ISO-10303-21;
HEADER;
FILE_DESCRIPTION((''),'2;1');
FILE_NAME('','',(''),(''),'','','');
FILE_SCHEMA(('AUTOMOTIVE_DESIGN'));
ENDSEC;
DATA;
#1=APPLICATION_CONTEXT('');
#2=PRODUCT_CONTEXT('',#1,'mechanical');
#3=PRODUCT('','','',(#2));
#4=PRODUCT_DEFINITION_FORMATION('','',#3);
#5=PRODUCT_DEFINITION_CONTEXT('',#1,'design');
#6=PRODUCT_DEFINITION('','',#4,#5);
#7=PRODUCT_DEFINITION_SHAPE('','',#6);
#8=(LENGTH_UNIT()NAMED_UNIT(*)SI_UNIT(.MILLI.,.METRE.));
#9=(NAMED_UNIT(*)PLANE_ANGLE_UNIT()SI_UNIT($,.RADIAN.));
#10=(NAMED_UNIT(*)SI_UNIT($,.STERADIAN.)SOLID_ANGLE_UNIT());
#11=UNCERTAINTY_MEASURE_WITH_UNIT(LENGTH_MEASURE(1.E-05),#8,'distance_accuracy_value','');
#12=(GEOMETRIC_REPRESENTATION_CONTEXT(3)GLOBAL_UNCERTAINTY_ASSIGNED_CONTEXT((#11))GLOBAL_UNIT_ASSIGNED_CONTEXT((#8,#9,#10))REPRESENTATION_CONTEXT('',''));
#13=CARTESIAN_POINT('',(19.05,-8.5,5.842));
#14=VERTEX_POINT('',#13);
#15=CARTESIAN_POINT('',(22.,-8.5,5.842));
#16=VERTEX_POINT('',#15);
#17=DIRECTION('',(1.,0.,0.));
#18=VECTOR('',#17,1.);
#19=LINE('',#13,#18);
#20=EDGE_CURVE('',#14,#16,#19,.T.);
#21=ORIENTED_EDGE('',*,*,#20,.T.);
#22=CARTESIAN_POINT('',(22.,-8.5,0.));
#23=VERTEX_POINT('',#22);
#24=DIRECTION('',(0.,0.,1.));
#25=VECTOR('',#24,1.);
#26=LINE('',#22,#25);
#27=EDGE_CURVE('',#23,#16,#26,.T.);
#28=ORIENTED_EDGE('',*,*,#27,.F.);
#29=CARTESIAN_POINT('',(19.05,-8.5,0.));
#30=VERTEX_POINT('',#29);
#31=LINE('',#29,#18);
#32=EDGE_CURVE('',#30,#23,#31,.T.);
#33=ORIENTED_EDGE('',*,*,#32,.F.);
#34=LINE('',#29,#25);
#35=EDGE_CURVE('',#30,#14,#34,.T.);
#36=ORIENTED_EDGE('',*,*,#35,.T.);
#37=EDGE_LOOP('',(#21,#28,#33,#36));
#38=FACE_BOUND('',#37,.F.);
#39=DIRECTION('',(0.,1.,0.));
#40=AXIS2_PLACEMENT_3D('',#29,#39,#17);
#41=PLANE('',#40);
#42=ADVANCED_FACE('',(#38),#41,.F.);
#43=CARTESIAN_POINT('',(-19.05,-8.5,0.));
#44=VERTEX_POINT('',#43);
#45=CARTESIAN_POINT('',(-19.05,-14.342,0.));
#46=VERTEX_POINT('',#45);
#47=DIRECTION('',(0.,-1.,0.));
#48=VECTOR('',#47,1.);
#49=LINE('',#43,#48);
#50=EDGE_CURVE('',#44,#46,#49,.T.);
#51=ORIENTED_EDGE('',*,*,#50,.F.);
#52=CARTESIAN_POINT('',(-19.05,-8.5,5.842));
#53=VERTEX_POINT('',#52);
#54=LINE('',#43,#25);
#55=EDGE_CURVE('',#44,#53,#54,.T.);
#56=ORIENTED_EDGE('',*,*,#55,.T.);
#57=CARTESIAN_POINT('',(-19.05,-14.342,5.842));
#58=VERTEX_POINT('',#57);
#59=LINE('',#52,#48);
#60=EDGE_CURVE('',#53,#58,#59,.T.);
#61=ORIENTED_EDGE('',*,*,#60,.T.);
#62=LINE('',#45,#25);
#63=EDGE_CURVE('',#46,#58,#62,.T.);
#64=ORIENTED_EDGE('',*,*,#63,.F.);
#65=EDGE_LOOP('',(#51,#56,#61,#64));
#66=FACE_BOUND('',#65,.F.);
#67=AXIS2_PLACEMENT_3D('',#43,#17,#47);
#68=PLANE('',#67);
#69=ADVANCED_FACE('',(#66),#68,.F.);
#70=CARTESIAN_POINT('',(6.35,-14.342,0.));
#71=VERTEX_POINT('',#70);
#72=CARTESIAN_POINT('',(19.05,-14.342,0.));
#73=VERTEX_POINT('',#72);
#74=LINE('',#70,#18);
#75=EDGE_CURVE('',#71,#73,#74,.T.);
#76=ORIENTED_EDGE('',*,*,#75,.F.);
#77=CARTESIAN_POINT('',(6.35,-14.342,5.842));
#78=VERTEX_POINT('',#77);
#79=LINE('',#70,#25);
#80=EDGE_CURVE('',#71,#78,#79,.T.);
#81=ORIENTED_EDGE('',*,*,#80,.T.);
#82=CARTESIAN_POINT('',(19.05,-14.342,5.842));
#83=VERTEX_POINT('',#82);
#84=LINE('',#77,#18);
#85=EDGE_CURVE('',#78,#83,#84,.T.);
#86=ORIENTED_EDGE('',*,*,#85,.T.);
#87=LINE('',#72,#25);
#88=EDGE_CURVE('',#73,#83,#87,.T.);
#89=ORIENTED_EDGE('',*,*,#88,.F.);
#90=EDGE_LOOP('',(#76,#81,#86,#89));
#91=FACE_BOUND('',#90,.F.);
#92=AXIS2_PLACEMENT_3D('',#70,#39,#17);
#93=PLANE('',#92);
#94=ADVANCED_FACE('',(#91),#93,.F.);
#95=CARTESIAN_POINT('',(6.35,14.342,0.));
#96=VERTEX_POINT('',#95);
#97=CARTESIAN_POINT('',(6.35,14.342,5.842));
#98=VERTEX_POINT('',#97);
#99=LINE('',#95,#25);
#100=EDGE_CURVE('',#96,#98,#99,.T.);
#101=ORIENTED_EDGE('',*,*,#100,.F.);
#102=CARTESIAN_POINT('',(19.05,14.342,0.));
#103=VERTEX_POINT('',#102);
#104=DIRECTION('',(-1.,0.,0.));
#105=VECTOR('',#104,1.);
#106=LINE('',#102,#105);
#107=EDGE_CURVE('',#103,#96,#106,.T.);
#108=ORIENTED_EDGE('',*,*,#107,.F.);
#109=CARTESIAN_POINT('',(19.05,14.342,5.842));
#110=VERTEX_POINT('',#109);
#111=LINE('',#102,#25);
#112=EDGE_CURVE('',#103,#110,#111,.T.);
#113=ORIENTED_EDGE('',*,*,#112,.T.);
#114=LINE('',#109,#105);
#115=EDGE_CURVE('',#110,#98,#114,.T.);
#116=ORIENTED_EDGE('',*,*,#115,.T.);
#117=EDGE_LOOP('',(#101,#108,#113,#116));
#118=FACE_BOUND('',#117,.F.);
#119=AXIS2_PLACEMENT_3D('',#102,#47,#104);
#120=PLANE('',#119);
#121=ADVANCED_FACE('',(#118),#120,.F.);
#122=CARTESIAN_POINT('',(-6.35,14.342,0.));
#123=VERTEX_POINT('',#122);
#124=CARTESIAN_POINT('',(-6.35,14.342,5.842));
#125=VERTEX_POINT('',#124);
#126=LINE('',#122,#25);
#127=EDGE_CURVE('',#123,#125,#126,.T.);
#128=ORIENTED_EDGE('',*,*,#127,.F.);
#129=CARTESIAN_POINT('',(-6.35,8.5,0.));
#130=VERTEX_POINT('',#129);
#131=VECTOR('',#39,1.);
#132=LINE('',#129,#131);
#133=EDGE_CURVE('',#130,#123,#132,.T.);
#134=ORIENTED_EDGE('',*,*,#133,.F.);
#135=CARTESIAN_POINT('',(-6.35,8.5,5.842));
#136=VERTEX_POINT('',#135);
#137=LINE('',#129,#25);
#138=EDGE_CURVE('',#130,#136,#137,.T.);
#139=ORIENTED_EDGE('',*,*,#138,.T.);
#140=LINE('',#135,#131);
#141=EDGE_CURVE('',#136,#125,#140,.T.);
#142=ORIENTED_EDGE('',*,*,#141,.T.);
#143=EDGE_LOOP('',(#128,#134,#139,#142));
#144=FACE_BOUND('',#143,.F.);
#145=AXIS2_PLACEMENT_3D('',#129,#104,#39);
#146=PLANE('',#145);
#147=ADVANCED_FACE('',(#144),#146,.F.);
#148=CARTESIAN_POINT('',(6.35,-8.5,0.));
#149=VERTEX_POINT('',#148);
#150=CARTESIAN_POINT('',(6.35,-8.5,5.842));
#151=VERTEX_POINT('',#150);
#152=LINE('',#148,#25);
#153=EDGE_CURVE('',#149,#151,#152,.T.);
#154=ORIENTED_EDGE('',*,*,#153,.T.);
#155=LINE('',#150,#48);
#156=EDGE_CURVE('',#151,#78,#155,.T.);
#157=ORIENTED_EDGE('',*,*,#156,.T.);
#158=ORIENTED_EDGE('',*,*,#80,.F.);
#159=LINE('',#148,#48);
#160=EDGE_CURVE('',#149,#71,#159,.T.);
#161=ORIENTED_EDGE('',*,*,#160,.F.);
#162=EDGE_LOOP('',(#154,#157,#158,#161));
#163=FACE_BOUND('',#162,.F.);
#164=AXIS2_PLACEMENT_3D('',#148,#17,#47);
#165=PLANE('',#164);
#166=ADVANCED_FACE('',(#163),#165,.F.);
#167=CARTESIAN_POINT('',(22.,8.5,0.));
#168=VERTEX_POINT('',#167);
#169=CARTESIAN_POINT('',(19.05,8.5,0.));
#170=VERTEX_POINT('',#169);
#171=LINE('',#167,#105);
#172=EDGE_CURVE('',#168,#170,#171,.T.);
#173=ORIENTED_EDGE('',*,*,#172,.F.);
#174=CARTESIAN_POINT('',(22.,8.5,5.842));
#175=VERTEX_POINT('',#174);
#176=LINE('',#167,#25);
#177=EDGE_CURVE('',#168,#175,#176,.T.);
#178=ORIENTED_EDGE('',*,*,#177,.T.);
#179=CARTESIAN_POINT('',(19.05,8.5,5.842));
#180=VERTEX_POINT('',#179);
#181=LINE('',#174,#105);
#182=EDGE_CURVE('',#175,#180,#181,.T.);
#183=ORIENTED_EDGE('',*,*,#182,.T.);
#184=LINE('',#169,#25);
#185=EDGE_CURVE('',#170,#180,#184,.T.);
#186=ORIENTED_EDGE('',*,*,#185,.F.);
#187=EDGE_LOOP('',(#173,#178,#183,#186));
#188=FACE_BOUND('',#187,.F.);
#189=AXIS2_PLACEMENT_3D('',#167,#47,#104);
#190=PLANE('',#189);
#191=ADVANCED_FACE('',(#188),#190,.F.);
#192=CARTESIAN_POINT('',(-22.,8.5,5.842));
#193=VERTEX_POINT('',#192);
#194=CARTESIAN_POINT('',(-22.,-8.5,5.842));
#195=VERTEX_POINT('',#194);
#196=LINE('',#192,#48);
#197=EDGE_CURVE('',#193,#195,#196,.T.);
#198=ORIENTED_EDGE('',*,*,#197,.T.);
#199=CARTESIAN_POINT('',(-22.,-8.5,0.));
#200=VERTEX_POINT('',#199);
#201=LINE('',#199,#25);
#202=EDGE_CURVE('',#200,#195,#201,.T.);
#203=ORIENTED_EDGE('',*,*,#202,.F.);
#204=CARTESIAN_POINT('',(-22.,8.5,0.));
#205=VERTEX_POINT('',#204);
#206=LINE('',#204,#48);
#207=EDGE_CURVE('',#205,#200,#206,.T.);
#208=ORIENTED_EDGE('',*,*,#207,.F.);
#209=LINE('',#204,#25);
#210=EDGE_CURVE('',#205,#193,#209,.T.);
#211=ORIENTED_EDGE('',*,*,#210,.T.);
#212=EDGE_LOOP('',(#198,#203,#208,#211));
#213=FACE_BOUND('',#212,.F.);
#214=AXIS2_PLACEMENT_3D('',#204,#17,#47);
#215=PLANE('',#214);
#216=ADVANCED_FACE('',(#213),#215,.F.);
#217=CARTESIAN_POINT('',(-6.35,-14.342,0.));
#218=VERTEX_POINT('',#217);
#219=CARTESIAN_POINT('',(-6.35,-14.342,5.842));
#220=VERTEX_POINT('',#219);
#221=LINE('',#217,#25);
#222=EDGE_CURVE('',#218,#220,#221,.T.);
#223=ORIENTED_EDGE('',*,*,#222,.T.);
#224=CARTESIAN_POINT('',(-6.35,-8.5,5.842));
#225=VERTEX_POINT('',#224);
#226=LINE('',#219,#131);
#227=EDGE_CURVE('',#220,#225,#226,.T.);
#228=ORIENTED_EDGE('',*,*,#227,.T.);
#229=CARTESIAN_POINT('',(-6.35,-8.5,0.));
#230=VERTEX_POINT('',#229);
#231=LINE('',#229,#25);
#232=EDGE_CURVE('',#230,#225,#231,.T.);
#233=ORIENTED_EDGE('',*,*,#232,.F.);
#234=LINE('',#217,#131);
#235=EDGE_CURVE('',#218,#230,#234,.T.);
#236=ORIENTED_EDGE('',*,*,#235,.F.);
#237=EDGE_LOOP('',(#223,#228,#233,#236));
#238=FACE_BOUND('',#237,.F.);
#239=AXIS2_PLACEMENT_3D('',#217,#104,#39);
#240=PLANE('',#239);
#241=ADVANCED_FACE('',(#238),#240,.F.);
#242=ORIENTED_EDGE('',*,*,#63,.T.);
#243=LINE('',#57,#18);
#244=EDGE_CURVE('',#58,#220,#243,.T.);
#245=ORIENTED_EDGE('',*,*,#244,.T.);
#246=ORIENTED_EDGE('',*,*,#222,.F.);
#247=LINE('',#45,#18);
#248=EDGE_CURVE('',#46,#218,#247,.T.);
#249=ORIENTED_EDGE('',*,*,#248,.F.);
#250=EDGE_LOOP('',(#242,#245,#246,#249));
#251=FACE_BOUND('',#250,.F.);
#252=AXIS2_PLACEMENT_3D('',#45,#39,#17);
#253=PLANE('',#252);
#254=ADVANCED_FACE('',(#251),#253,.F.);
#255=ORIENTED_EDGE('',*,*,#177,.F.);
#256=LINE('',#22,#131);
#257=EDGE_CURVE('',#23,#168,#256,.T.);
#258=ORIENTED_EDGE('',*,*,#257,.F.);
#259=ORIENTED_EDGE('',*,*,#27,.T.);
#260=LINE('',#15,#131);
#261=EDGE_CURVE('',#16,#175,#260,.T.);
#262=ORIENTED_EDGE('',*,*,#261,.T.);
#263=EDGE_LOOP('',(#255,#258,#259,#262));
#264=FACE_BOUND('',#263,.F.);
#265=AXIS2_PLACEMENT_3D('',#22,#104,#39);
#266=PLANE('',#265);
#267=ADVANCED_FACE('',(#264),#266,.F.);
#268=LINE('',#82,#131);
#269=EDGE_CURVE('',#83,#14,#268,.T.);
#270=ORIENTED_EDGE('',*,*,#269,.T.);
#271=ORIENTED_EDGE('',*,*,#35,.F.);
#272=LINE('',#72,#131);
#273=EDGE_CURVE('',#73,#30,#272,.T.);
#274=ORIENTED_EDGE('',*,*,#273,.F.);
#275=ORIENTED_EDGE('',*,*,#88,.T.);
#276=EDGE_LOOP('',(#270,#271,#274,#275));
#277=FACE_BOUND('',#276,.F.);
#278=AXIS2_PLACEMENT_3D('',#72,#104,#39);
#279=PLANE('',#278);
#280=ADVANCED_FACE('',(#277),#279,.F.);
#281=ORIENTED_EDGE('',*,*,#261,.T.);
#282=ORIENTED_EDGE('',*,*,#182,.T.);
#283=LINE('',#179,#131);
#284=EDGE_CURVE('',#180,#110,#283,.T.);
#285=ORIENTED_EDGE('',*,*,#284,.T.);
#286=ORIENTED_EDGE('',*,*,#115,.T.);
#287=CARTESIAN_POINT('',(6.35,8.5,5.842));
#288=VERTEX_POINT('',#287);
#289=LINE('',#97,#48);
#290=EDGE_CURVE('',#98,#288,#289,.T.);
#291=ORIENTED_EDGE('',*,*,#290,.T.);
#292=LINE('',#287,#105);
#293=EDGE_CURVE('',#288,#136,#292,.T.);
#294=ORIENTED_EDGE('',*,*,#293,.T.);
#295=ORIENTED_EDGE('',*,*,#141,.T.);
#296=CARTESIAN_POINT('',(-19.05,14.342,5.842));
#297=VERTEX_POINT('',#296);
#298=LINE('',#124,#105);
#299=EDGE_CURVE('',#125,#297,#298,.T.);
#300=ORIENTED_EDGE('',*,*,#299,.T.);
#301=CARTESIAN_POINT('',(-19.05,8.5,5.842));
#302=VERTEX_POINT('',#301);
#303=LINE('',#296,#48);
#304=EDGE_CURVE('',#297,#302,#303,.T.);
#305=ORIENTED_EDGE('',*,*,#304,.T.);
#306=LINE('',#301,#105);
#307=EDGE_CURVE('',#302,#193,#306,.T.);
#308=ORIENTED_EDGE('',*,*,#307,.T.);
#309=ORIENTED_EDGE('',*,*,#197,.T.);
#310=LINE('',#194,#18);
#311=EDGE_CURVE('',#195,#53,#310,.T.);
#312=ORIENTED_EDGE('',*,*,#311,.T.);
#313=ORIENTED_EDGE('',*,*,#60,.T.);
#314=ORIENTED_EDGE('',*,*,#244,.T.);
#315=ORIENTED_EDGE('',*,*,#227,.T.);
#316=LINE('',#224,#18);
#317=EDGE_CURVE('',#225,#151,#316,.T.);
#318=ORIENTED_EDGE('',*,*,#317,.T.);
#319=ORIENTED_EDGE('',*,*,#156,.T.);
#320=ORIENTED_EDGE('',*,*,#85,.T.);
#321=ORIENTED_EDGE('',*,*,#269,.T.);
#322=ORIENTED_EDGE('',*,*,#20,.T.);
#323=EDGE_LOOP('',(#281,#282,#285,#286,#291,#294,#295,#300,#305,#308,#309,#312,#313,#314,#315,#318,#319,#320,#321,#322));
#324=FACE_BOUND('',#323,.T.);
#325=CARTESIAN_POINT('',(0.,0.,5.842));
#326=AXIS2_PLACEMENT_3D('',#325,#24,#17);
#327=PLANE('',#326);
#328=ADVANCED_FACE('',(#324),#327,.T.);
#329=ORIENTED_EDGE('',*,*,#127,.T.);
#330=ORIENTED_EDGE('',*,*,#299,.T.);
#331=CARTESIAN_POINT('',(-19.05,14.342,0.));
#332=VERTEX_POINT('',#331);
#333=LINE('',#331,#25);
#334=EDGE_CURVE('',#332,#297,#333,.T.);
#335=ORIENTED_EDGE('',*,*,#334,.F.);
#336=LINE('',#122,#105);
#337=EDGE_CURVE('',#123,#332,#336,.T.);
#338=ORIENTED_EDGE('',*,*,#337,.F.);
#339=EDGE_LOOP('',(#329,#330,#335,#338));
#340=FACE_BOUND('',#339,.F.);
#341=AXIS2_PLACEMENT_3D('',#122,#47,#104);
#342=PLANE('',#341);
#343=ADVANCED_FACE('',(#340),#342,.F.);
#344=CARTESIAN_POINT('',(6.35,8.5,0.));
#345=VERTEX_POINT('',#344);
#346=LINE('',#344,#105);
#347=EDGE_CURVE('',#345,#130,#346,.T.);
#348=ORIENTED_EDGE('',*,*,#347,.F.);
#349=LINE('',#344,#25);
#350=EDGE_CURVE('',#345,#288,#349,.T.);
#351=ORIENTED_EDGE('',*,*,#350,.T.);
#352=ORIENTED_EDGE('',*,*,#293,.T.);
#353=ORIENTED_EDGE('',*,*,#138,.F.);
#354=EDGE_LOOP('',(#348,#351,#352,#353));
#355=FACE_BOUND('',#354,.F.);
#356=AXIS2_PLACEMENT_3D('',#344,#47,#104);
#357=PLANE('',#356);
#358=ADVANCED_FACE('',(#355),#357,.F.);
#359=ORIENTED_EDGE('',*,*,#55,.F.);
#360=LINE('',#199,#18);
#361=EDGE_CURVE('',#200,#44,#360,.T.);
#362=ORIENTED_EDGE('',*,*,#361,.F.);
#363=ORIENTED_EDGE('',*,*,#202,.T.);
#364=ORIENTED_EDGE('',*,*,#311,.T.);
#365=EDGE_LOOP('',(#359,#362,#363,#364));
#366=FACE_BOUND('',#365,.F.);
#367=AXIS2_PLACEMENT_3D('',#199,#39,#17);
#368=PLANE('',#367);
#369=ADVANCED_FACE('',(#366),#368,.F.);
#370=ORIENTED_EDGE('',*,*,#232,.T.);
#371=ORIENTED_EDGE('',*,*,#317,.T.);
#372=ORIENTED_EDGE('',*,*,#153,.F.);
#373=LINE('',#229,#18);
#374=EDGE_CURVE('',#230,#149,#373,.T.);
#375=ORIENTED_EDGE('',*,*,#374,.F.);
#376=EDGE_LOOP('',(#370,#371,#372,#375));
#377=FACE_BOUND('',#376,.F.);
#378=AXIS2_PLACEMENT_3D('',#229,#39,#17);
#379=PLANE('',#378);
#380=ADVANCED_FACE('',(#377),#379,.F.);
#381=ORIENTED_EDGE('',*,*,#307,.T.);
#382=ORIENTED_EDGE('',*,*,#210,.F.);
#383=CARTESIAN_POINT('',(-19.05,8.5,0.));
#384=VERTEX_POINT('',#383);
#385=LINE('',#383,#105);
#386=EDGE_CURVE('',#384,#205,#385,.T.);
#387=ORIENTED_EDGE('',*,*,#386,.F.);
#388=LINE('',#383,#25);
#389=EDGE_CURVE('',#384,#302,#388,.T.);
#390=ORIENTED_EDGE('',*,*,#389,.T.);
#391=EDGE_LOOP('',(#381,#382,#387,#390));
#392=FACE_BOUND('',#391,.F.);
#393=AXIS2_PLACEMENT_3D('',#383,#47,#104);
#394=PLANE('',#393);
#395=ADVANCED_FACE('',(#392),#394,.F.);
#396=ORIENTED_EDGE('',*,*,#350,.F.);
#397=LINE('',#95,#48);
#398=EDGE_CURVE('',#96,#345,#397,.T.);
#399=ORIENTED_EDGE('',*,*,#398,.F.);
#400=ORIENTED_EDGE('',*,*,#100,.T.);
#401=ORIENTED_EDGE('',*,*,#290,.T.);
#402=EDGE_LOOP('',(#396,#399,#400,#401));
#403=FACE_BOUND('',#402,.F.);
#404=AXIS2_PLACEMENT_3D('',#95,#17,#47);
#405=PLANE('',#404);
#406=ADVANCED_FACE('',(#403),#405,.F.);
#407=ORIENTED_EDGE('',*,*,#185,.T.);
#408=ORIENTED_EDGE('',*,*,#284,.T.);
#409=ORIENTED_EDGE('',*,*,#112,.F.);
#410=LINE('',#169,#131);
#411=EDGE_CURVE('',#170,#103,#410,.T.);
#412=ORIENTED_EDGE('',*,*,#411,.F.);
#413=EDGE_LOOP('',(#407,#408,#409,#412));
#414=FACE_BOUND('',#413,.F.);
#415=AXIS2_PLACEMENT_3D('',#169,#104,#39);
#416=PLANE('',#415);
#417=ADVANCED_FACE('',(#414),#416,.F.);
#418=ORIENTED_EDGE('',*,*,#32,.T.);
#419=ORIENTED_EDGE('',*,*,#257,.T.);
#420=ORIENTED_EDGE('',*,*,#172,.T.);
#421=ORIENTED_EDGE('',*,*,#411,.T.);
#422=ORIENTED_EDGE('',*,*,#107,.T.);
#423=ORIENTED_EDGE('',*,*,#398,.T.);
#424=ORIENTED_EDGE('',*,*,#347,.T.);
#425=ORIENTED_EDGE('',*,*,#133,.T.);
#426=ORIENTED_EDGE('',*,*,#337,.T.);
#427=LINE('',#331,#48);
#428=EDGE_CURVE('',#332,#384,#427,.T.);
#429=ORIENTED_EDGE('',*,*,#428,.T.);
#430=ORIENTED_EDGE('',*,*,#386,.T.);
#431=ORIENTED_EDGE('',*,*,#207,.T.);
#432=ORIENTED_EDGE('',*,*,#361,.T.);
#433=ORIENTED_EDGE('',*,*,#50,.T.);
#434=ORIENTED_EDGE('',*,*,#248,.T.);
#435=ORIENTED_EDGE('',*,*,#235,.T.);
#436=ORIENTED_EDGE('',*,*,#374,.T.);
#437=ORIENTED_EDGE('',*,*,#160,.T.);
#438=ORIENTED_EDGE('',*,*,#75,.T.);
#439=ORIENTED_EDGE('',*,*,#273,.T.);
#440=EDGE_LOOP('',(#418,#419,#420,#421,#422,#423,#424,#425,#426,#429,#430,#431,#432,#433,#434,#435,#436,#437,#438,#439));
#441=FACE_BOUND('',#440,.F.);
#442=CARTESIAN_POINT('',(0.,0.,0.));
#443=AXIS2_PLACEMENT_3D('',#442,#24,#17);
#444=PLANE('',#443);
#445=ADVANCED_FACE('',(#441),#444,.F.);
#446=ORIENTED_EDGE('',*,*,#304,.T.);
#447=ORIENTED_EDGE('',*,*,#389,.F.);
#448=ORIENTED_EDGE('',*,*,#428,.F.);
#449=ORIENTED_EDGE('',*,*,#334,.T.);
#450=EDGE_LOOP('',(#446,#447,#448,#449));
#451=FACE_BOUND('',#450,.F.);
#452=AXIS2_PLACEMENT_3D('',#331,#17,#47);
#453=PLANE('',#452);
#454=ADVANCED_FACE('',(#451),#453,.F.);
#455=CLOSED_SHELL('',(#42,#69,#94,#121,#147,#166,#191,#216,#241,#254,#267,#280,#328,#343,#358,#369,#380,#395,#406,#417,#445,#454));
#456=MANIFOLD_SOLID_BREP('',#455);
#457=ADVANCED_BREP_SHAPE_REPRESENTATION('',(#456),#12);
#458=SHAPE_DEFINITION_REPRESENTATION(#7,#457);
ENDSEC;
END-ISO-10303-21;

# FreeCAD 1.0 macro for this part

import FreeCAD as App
import Part
import Sketcher
Q = App.Units.Quantity


def add_polygon(sketch, points):
    """Adds a closed chain of lines whose ends are joined by coincident constraints."""
    first, n = sketch.GeometryCount, len(points)
    for a, b in zip(points, points[1:] + points[:1]):
        sketch.addGeometry(Part.LineSegment(App.Vector(*a, 0), App.Vector(*b, 0)), False)
    for i in range(n):
        sketch.addConstraint(Sketcher.Constraint("Coincident", first + i, 2, first + (i + 1) % n, 1))

doc = App.newDocument("Part")
body = doc.addObject("PartDesign::Body", "Body")

sketch1 = body.newObject("Sketcher::SketchObject", "Sketch")
sketch1.AttachmentSupport = (doc.getObject("XY_Plane"), [""])
sketch1.MapMode = "FlatFace"
add_polygon(sketch1, [(-19.1, 8.5), (-22, 8.5), (-22, -8.5), (-19.1, -8.5), (-19.1, -14.3), (-6.3, -14.3), (-6.3, -8.5), (6.3, -8.5), (6.3, -14.3), (19.1, -14.3), (19.1, -8.5), (22, -8.5), (22, 8.5), (19.1, 8.5), (19.1, 14.3), (6.3, 14.3), (6.3, 8.5), (-6.3, 8.5), (-6.3, 14.3), (-19.1, 14.3)])
sketch1.addConstraint([
    Sketcher.Constraint("Horizontal", 0),
    Sketcher.Constraint("Vertical", 1),
    Sketcher.Constraint("Horizontal", 2),
    Sketcher.Constraint("Vertical", 3),
    Sketcher.Constraint("Horizontal", 4),
    Sketcher.Constraint("Vertical", 5),
    Sketcher.Constraint("Horizontal", 6),
    Sketcher.Constraint("Vertical", 7),
    Sketcher.Constraint("Horizontal", 8),
    Sketcher.Constraint("Vertical", 9),
    Sketcher.Constraint("Horizontal", 10),
    Sketcher.Constraint("Vertical", 11),
    Sketcher.Constraint("Horizontal", 12),
    Sketcher.Constraint("Vertical", 13),
    Sketcher.Constraint("Horizontal", 14),
    Sketcher.Constraint("Vertical", 15),
    Sketcher.Constraint("Horizontal", 16),
    Sketcher.Constraint("Vertical", 17),
    Sketcher.Constraint("Horizontal", 18),
    Sketcher.Constraint("Vertical", 19),
    Sketcher.Constraint("Symmetric", 0, 2, 10, 2, -1, 1),
    Sketcher.Constraint("Symmetric", 2, 2, 12, 2, -1, 1),
    Sketcher.Constraint("Symmetric", 4, 2, 14, 2, -1, 1),
    Sketcher.Constraint("Symmetric", 6, 2, 16, 2, -1, 1),
    Sketcher.Constraint("Symmetric", 8, 2, 18, 2, -1, 1),
    Sketcher.Constraint("Symmetric", 4, 2, 7, 2, -2),
    Sketcher.Constraint("Symmetric", 2, 2, 9, 2, -2),
    Sketcher.Constraint("Horizontal", 2, 2, 5, 2),
    Sketcher.Constraint("Equal", 4, 6),
    Sketcher.Constraint("DistanceX", 4, 1, 4, 2, Q("0.5 in")),
    Sketcher.Constraint("DistanceY", 3, 2, 3, 1, Q("0.23 in")),
    Sketcher.Constraint("DistanceX", 0, 2, 0, 1, Q("2.95 mm")),
    Sketcher.Constraint("DistanceY", 1, 2, 1, 1, Q("17 mm")),
])
pad1 = body.newObject("PartDesign::Pad", "Pad")
pad1.Profile = sketch1
pad1.Length = Q("0.23 in")

doc.recompute()
